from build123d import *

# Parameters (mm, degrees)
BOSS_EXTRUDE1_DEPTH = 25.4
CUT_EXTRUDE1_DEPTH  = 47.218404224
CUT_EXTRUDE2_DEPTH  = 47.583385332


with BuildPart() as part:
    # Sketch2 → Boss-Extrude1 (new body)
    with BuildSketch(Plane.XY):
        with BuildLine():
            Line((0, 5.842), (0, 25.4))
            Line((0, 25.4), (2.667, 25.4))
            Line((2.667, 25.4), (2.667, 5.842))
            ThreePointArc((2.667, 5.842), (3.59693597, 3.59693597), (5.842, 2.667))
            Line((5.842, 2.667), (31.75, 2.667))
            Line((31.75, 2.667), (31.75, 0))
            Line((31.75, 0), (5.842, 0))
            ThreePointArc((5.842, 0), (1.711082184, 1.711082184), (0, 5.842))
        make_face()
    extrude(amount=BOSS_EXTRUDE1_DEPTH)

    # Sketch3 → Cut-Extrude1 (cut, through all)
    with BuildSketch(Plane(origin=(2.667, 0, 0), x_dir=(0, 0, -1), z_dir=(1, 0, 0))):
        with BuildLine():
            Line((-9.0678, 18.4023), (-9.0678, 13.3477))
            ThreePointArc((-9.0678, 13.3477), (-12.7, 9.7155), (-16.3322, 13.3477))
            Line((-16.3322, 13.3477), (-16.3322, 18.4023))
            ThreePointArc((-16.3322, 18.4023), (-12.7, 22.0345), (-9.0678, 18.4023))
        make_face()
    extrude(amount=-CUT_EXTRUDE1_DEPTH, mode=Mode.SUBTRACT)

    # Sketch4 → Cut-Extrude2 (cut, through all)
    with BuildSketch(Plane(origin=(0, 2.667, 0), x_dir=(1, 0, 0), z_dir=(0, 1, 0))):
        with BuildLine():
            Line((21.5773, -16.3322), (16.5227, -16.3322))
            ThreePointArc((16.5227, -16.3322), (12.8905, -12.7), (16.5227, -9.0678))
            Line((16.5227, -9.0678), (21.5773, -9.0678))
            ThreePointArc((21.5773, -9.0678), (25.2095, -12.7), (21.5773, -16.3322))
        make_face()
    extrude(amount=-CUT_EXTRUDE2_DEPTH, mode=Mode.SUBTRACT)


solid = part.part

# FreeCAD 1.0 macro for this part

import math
import FreeCAD as App
import Part
import Sketcher

V = App.Vector
Q = App.Units.Quantity

doc = App.newDocument("Part")
body = doc.addObject("PartDesign::Body", "Body")

# Sketch on XY plane
sketch1 = body.newObject("Sketcher::SketchObject", "Sketch")
sketch1.AttachmentSupport = (doc.getObject("XY_Plane"), [""])
sketch1.MapMode = "FlatFace"
sketch1.addGeometry([
    Part.LineSegment(V(0, 25.4, 0), V(0, 5.8, 0)),  # 0
    Part.ArcOfCircle(Part.Circle(V(5.8, 5.8, 0), V(0, 0, 1), 5.8), math.radians(180), math.radians(270)),  # 1
    Part.LineSegment(V(5.8, 0, 0), V(31.8, 0, 0)),  # 2
    Part.LineSegment(V(31.8, 0, 0), V(31.8, 2.7, 0)),  # 3
    Part.LineSegment(V(31.8, 2.7, 0), V(5.8, 2.7, 0)),  # 4
    Part.ArcOfCircle(Part.Circle(V(5.8, 5.8, 0), V(0, 0, 1), 3.2), math.radians(-180), math.radians(-90)),  # 5
    Part.LineSegment(V(2.7, 5.8, 0), V(2.7, 25.4, 0)),  # 6
    Part.LineSegment(V(2.7, 25.4, 0), V(0, 25.4, 0)),  # 7
], False)
sketch1.addConstraint([
    Sketcher.Constraint("Tangent", 0, 2, 1, 1),
    Sketcher.Constraint("Tangent", 1, 2, 2, 1),
    Sketcher.Constraint("Coincident", 2, 2, 3, 1),
    Sketcher.Constraint("Coincident", 3, 2, 4, 1),
    Sketcher.Constraint("Tangent", 4, 2, 5, 2),
    Sketcher.Constraint("Tangent", 5, 1, 6, 1),
    Sketcher.Constraint("Coincident", 6, 2, 7, 1),
    Sketcher.Constraint("Coincident", 7, 2, 0, 1),
    Sketcher.Constraint("Vertical", 0),
    Sketcher.Constraint("Horizontal", 2),
    Sketcher.Constraint("Vertical", 3),
    Sketcher.Constraint("Horizontal", 4),
    Sketcher.Constraint("Vertical", 6),
    Sketcher.Constraint("Horizontal", 7),
    Sketcher.Constraint("Coincident", 5, 3, 1, 3),
    Sketcher.Constraint("PointOnObject", 0, 2, -2),
    Sketcher.Constraint("PointOnObject", 1, 2, -1),
    Sketcher.Constraint("Radius", 1, Q("0.23 in")),
    Sketcher.Constraint("DistanceY", -1, 1, 6, 2, Q("1 in")),
    Sketcher.Constraint("Radius", 5, Q("0.125 in")),
    Sketcher.Constraint("DistanceX", 2, 1, 2, 2, Q("1.02 in")),
])
pad1 = body.newObject("PartDesign::Pad", "Pad")
pad1.Profile = sketch1
pad1.Length = Q("1 in")

# Sketch on YZ plane
sketch2 = body.newObject("Sketcher::SketchObject", "Sketch001")
sketch2.AttachmentSupport = (doc.getObject("YZ_Plane"), [""])
sketch2.MapMode = "FlatFace"
sketch2.AttachmentOffset = App.Placement(V(0, 0, 0.105 * 25.4), App.Rotation())
sketch2.addGeometry([
    Part.LineSegment(V(13.3, 9.1, 0), V(18.4, 9.1, 0)),
    Part.ArcOfCircle(Part.Circle(V(18.4, 12.7, 0), V(0, 0, 1), 3.6), math.radians(-90), math.radians(90)),
    Part.LineSegment(V(18.4, 16.3, 0), V(13.3, 16.3, 0)),
    Part.ArcOfCircle(Part.Circle(V(13.3, 12.7, 0), V(0, 0, 1), 3.6), math.radians(90), math.radians(270)),
], False)
sketch2.addConstraint([
    Sketcher.Constraint("Tangent", 0, 2, 1, 1),
    Sketcher.Constraint("Tangent", 1, 2, 2, 1),
    Sketcher.Constraint("Tangent", 2, 2, 3, 1),
    Sketcher.Constraint("Tangent", 3, 2, 0, 1),
    Sketcher.Constraint("Horizontal", 0),
    Sketcher.Constraint("Horizontal", 2),
    Sketcher.Constraint("Radius", 1, Q("0.143 in")),
    Sketcher.Constraint("DistanceY", -1, 1, 1, 3, Q("0.5 in")),
    Sketcher.Constraint("DistanceX", 0, 1, 0, 2, Q("0.199 in")),
    Sketcher.Constraint("DistanceX", -1, 1, 1, 3, Q("0.7245 in")),
])
pocket1 = body.newObject("PartDesign::Pocket", "Pocket")
pocket1.Profile = sketch2
pocket1.Type = "ThroughAll"

# Sketch on XZ plane
sketch3 = body.newObject("Sketcher::SketchObject", "Sketch002")
sketch3.AttachmentSupport = (doc.getObject("XZ_Plane"), [""])
sketch3.MapMode = "FlatFace"
sketch3.AttachmentOffset = App.Placement(V(0, 0, -0.105 * 25.4), App.Rotation())
sketch3.addGeometry([
    Part.LineSegment(V(16.5, 16.3, 0), V(21.6, 16.3, 0)),
    Part.ArcOfCircle(Part.Circle(V(21.6, 12.7, 0), V(0, 0, 1), 3.6), math.radians(-90), math.radians(90)),
    Part.LineSegment(V(21.6, 9.1, 0), V(16.5, 9.1, 0)),
    Part.ArcOfCircle(Part.Circle(V(16.5, 12.7, 0), V(0, 0, 1), 3.6), math.radians(90), math.radians(270)),
], False)
sketch3.addConstraint([
    Sketcher.Constraint("Tangent", 0, 2, 1, 2),
    Sketcher.Constraint("Tangent", 1, 1, 2, 1),
    Sketcher.Constraint("Tangent", 2, 2, 3, 2),
    Sketcher.Constraint("Tangent", 3, 1, 0, 1),
    Sketcher.Constraint("Horizontal", 0),
    Sketcher.Constraint("Horizontal", 2),
    Sketcher.Constraint("Radius", 1, Q("0.143 in")),
    Sketcher.Constraint("DistanceY", -1, 1, 1, 3, Q("0.5 in")),
    Sketcher.Constraint("DistanceX", 0, 1, 0, 2, Q("0.199 in")),
    Sketcher.Constraint("DistanceX", -1, 1, 1, 3, Q("0.8495 in")),
])
pocket2 = body.newObject("PartDesign::Pocket", "Pocket001")
pocket2.Profile = sketch3
pocket2.Type = "ThroughAll"
pocket2.Reversed = True

doc.recompute()
